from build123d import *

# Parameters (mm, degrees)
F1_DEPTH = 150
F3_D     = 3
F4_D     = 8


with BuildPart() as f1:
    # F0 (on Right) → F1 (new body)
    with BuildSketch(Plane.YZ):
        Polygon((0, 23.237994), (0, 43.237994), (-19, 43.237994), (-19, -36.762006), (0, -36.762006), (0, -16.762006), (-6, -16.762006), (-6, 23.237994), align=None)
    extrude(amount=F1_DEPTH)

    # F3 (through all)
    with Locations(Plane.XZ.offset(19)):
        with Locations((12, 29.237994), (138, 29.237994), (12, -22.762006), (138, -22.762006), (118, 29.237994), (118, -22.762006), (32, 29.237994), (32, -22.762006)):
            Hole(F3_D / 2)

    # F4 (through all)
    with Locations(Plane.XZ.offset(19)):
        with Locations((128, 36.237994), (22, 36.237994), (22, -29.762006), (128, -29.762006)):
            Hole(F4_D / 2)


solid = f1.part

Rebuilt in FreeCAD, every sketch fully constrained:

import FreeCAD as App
import Part
import Sketcher


def add_polygon(sketch, points):
    """Adds a closed chain of lines whose ends are joined by coincident constraints."""
    first, n = sketch.GeometryCount, len(points)
    for a, b in zip(points, points[1:] + points[:1]):
        sketch.addGeometry(Part.LineSegment(App.Vector(*a, 0), App.Vector(*b, 0)), False)
    for i in range(n):
        sketch.addConstraint(Sketcher.Constraint("Coincident", first + i, 2, first + (i + 1) % n, 1))

doc = App.newDocument("Part")
body = doc.addObject("PartDesign::Body", "Body")

# Sketch on YZ plane
sketch1 = doc.addObject("Sketcher::SketchObject", "Sketch")
body.addObject(sketch1)
sketch1.AttachmentSupport = (doc.YZ_Plane, [""])
sketch1.MapMode = "FlatFace"
add_polygon(sketch1, [(0, 23.237994), (0, 43.237994), (-19, 43.237994), (-19, -36.762006), (0, -36.762006), (0, -16.762006), (-6, -16.762006), (-6, 23.237994)])  # lines 0-7
sketch1.addConstraint([
    Sketcher.Constraint("Vertical", 0),
    Sketcher.Constraint("Horizontal", 1),
    Sketcher.Constraint("Vertical", 2),
    Sketcher.Constraint("Horizontal", 3),
    Sketcher.Constraint("Vertical", 4),
    Sketcher.Constraint("Horizontal", 5),
    Sketcher.Constraint("Vertical", 6),
    Sketcher.Constraint("Horizontal", 7),
    Sketcher.Constraint("PointOnObject", 0, 2, -2),
    Sketcher.Constraint("PointOnObject", 3, 2, -2),
    Sketcher.Constraint("Equal", 0, 4),
    Sketcher.Constraint("DistanceX", 1, 2, 1, 1, 19.0),
    Sketcher.Constraint("DistanceX", 5, 2, 5, 1, 6.0),
    Sketcher.Constraint("DistanceY", 0, 1, 0, 2, 20.0),
    Sketcher.Constraint("DistanceY", 2, 2, 2, 1, 80.0),
    Sketcher.Constraint("DistanceY", -1, 1, 0, 2, 43.237994),
])
pad1 = doc.addObject("PartDesign::Pad", "Pad")
body.addObject(pad1)
pad1.Profile = sketch1
pad1.Length = 150

# Sketch on XZ plane
sketch2 = doc.addObject("Sketcher::SketchObject", "Sketch001")
body.addObject(sketch2)
sketch2.AttachmentSupport = (doc.XZ_Plane, [""])
sketch2.MapMode = "FlatFace"
sketch2.AttachmentOffset = App.Placement(App.Vector(0, 0, 19), App.Rotation())
sketch2.addGeometry([
    Part.Circle(App.Vector(12, 29.237994, 0), App.Vector(0, 0, 1), 1.5),  # 0
    Part.Circle(App.Vector(138, 29.237994, 0), App.Vector(0, 0, 1), 1.5),  # 1
    Part.Circle(App.Vector(12, -22.762006, 0), App.Vector(0, 0, 1), 1.5),  # 2
    Part.Circle(App.Vector(138, -22.762006, 0), App.Vector(0, 0, 1), 1.5),  # 3
    Part.Circle(App.Vector(118, 29.237994, 0), App.Vector(0, 0, 1), 1.5),  # 4
    Part.Circle(App.Vector(118, -22.762006, 0), App.Vector(0, 0, 1), 1.5),  # 5
    Part.Circle(App.Vector(32, 29.237994, 0), App.Vector(0, 0, 1), 1.5),  # 6
    Part.Circle(App.Vector(32, -22.762006, 0), App.Vector(0, 0, 1), 1.5),  # 7
], False)
sketch2.addConstraint([
    Sketcher.Constraint("Equal", 0, 1),
    Sketcher.Constraint("Equal", 1, 2),
    Sketcher.Constraint("Equal", 2, 3),
    Sketcher.Constraint("Equal", 3, 4),
    Sketcher.Constraint("Equal", 4, 5),
    Sketcher.Constraint("Equal", 5, 6),
    Sketcher.Constraint("Equal", 6, 7),
    Sketcher.Constraint("Horizontal", 0, 3, 1, 3),
    Sketcher.Constraint("Horizontal", 2, 3, 3, 3),
    Sketcher.Constraint("Horizontal", 1, 3, 4, 3),
    Sketcher.Constraint("Horizontal", 3, 3, 5, 3),
    Sketcher.Constraint("Horizontal", 4, 3, 6, 3),
    Sketcher.Constraint("Horizontal", 5, 3, 7, 3),
    Sketcher.Constraint("Vertical", 0, 3, 2, 3),
    Sketcher.Constraint("Vertical", 1, 3, 3, 3),
    Sketcher.Constraint("Vertical", 4, 3, 5, 3),
    Sketcher.Constraint("Vertical", 6, 3, 7, 3),
    Sketcher.Constraint("Diameter", 0, 3.0),
    Sketcher.Constraint("DistanceX", -1, 1, 0, 3, 12.0),
    Sketcher.Constraint("DistanceX", -1, 1, 1, 3, 138.0),
    Sketcher.Constraint("DistanceX", -1, 1, 4, 3, 118.0),
    Sketcher.Constraint("DistanceX", -1, 1, 6, 3, 32.0),
    Sketcher.Constraint("DistanceY", 2, 3, 0, 3, 52.0),
    Sketcher.Constraint("DistanceY", -1, 1, 0, 3, 29.237994),
])
doc.recompute()
hole = doc.addObject("PartDesign::Hole", "Hole")
body.addObject(hole)
hole.Profile = sketch2
hole.ThreadType = "None"
hole.Diameter = 3
hole.DepthType = "ThroughAll"

# Sketch on XZ plane
sketch3 = doc.addObject("Sketcher::SketchObject", "Sketch002")
body.addObject(sketch3)
sketch3.AttachmentSupport = (doc.XZ_Plane, [""])
sketch3.MapMode = "FlatFace"
sketch3.AttachmentOffset = App.Placement(App.Vector(0, 0, 19), App.Rotation())
sketch3.addGeometry([
    Part.Circle(App.Vector(128, 36.237994, 0), App.Vector(0, 0, 1), 4),
    Part.Circle(App.Vector(22, 36.237994, 0), App.Vector(0, 0, 1), 4),
    Part.Circle(App.Vector(22, -29.762006, 0), App.Vector(0, 0, 1), 4),
    Part.Circle(App.Vector(128, -29.762006, 0), App.Vector(0, 0, 1), 4),
], False)
sketch3.addConstraint([
    Sketcher.Constraint("Equal", 0, 1),
    Sketcher.Constraint("Equal", 1, 2),
    Sketcher.Constraint("Equal", 2, 3),
    Sketcher.Constraint("Horizontal", 0, 3, 1, 3),
    Sketcher.Constraint("Horizontal", 2, 3, 3, 3),
    Sketcher.Constraint("Vertical", 1, 3, 2, 3),
    Sketcher.Constraint("Vertical", 0, 3, 3, 3),
    Sketcher.Constraint("Diameter", 0, 8.0),
    Sketcher.Constraint("DistanceX", -1, 1, 0, 3, 128.0),
    Sketcher.Constraint("DistanceX", -1, 1, 1, 3, 22.0),
    Sketcher.Constraint("DistanceY", 2, 3, 1, 3, 66.0),
    Sketcher.Constraint("DistanceY", -1, 1, 0, 3, 36.237994),
])
doc.recompute()
hole2 = doc.addObject("PartDesign::Hole", "Hole001")
body.addObject(hole2)
hole2.Profile = sketch3
hole2.ThreadType = "None"
hole2.Diameter = 8
hole2.DepthType = "ThroughAll"

doc.recompute()
